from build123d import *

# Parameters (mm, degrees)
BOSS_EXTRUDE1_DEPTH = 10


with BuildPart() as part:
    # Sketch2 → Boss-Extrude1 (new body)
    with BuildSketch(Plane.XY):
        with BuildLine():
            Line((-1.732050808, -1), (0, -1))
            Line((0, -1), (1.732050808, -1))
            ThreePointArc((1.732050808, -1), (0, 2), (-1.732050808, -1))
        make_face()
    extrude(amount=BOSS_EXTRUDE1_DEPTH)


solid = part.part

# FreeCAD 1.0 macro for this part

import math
import FreeCAD as App
import Part
import Sketcher

V = App.Vector
Q = App.Units.Quantity

doc = App.newDocument("Part")
params = doc.addObject("Spreadsheet::Sheet", "Params")
for row, (alias, value) in enumerate([
    ("sketch1_radius", "2 mm"),
    ("pad1_length", "10 mm"),
], start=1):
    params.set(f"A{row}", alias)
    params.set(f"B{row}", "=" + value)
    params.setAlias(f"B{row}", alias)

body = doc.addObject("PartDesign::Body", "Body")

# Sketch on XY plane
sketch1 = body.newObject("Sketcher::SketchObject", "Sketch")
sketch1.AttachmentSupport = (doc.getObject("XY_Plane"), [""])
sketch1.MapMode = "FlatFace"
sketch1.addGeometry([
    Part.LineSegment(V(-1.7, -1, 0), V(1.7, -1, 0)),
    Part.ArcOfCircle(Part.Circle(V(0, 0, 0), V(0, 0, 1), 2), math.radians(-30), math.radians(210)),
], False)
sketch1.addConstraint([
    Sketcher.Constraint("Coincident", 0, 1, 1, 2),
    Sketcher.Constraint("Coincident", 1, 1, 0, 2),
    Sketcher.Constraint("Horizontal", 0),
    Sketcher.Constraint("Coincident", 1, 3, -1, 1),
    Sketcher.Constraint("Radius", 1, Q("2 mm")),
    Sketcher.Constraint("DistanceY", 0, 1, -1, 1, Q("1 mm")),
])
sketch1.setExpression("Constraints[4]", "Params.sketch1_radius")
pad1 = body.newObject("PartDesign::Pad", "Pad")
pad1.Profile = sketch1
pad1.setExpression("Length", "Params.pad1_length")

doc.recompute()
